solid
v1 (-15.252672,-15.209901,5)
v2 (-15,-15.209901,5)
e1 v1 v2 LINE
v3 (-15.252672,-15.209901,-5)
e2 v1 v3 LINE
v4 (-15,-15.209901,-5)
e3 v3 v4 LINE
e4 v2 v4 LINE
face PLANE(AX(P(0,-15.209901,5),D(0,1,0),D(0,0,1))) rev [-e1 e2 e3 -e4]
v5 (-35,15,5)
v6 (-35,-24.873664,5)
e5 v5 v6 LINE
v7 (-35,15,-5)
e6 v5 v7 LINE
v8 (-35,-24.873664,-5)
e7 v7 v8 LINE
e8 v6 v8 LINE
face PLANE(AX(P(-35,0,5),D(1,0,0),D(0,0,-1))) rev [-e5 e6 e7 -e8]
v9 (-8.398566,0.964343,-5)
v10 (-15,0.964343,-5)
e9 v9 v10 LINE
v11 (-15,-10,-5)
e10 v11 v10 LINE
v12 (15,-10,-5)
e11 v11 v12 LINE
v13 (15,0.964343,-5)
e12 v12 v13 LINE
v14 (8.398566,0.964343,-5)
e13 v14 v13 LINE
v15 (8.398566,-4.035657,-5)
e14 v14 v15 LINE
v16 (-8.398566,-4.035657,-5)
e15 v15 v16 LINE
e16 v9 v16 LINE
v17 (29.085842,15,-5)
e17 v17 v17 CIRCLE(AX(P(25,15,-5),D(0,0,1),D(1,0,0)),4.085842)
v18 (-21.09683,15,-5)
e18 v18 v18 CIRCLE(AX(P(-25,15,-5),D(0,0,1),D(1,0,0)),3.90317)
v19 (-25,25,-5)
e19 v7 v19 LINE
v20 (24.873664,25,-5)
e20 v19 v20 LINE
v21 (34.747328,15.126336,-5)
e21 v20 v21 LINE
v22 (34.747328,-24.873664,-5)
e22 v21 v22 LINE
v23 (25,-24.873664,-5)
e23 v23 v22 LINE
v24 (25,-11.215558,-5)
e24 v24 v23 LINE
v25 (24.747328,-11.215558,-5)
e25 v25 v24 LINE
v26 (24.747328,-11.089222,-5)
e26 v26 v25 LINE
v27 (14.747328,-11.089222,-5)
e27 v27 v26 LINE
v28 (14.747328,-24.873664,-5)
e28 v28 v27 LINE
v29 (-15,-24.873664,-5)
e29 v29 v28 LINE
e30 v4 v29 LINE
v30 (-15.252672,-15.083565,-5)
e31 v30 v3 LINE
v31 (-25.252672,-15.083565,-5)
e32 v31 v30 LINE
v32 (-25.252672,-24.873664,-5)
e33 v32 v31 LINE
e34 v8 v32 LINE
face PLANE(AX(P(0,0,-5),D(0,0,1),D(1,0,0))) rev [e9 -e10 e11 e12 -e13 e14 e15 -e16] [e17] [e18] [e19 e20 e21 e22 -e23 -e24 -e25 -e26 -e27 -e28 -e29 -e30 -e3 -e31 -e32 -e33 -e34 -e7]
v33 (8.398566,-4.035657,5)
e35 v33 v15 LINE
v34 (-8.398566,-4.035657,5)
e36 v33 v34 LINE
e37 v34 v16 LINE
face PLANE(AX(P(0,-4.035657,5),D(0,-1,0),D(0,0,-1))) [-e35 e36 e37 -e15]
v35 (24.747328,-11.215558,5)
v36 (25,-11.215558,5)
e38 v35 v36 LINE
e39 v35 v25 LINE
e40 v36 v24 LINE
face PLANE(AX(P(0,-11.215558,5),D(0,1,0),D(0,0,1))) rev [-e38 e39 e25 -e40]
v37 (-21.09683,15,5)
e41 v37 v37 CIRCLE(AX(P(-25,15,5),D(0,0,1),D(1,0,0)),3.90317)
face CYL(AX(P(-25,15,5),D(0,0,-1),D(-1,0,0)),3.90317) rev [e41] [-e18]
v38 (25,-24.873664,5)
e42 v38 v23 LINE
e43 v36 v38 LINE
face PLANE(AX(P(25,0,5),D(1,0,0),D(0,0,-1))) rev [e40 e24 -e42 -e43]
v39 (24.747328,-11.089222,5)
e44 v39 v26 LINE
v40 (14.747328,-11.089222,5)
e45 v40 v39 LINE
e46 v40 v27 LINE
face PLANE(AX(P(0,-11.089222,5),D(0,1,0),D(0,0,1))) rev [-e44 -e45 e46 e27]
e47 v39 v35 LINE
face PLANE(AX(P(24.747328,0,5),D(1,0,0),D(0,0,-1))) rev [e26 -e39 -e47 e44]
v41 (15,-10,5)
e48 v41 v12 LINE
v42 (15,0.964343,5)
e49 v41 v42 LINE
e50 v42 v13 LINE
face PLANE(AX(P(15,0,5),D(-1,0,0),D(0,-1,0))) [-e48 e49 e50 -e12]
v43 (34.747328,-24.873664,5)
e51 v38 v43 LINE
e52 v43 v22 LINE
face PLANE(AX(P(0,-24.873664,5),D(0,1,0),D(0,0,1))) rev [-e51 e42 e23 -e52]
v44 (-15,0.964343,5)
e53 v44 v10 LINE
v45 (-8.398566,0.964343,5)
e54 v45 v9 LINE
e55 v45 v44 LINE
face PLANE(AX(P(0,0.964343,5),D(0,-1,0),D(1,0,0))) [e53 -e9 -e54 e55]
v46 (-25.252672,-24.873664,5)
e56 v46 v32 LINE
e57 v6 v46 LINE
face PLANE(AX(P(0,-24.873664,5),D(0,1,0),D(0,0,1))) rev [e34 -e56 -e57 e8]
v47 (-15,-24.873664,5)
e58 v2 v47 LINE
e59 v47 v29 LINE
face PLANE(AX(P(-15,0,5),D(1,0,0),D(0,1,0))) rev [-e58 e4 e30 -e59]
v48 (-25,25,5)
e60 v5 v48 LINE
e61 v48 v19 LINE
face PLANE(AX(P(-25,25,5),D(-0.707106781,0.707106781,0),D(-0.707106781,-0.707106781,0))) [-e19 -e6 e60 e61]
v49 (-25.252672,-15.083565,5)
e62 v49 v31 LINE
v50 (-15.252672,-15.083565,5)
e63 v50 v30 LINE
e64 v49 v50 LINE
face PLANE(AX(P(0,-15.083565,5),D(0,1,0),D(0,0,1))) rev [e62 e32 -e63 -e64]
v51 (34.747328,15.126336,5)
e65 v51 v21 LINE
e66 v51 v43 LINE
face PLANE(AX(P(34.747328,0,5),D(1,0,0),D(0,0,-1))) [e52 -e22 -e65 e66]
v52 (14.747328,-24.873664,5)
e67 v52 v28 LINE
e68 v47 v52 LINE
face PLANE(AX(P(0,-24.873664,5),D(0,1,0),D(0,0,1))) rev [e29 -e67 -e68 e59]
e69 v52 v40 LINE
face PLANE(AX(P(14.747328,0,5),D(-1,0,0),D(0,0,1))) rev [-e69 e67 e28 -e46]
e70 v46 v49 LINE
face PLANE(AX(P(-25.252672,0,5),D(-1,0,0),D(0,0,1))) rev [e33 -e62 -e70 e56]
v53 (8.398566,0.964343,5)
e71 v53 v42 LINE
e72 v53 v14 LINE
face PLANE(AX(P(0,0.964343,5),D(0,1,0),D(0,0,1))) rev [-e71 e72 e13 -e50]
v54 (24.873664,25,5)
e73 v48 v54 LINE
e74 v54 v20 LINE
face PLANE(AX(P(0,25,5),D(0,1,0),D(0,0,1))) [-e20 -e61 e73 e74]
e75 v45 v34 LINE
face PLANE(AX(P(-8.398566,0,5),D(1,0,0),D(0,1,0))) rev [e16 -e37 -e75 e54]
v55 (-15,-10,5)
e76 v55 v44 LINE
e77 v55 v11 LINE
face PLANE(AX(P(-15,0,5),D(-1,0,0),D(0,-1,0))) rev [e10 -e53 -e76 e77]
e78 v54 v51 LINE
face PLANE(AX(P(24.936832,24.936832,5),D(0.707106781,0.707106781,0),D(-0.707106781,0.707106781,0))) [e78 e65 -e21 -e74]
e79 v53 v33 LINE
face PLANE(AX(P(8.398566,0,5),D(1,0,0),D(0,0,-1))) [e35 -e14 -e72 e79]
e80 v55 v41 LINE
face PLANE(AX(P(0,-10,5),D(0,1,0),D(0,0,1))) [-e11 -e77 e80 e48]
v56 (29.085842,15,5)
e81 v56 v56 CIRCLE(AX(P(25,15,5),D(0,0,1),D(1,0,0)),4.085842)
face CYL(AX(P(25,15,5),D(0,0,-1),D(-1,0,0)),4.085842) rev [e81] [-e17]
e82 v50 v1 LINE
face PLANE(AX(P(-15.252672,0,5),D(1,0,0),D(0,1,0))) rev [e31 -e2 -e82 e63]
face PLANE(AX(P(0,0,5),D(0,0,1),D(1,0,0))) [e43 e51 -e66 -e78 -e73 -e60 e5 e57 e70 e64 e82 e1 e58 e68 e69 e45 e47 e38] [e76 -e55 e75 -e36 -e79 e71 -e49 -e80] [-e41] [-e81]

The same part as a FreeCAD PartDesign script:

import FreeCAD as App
import Part
import Sketcher
Q = App.Units.Quantity


def add_polygon(sketch, points):
    """Adds a closed chain of lines whose ends are joined by coincident constraints."""
    first, n = sketch.GeometryCount, len(points)
    for a, b in zip(points, points[1:] + points[:1]):
        sketch.addGeometry(Part.LineSegment(App.Vector(*a, 0), App.Vector(*b, 0)), False)
    for i in range(n):
        sketch.addConstraint(Sketcher.Constraint("Coincident", first + i, 2, first + (i + 1) % n, 1))

doc = App.newDocument("Part")
body = doc.addObject("PartDesign::Body", "Body")

# Sketch on XY plane
sketch1 = body.newObject("Sketcher::SketchObject", "Sketch")
sketch1.AttachmentSupport = (doc.getObject("XY_Plane"), [""])
sketch1.MapMode = "FlatFace"
add_polygon(sketch1, [(24.87, 25), (-25, 25), (-35, 15), (-35, -24.87), (-25.25, -24.87), (-25.25, -15.08), (-15.25, -15.08), (-15.25, -15.21), (-15, -15.21), (-15, -24.87), (14.75, -24.87), (14.75, -11.09), (24.75, -11.09), (24.75, -11.22), (25, -11.22), (25, -24.87), (34.75, -24.87), (34.75, 15.13)])  # lines 0-17
add_polygon(sketch1, [(15, 0.96), (15, -10), (-15, -10), (-15, 0.96), (-8.4, 0.96), (-8.4, -4.04), (8.4, -4.04), (8.4, 0.96)])  # lines 18-25
sketch1.addGeometry(Part.Circle(App.Vector(-25, 15, 0), App.Vector(0, 0, 1), 3.9), False)  # 26
sketch1.addGeometry(Part.Circle(App.Vector(25, 15, 0), App.Vector(0, 0, 1), 4.09), False)  # 27
sketch1.addConstraint(Sketcher.Constraint("Horizontal", 0))
sketch1.addConstraint(Sketcher.Constraint("Vertical", 2))
sketch1.addConstraint(Sketcher.Constraint("Horizontal", 3))
sketch1.addConstraint(Sketcher.Constraint("Vertical", 4))
sketch1.addConstraint(Sketcher.Constraint("Horizontal", 5))
sketch1.addConstraint(Sketcher.Constraint("Vertical", 6))
sketch1.addConstraint(Sketcher.Constraint("Horizontal", 7))
sketch1.addConstraint(Sketcher.Constraint("Vertical", 8))
sketch1.addConstraint(Sketcher.Constraint("Horizontal", 9))
sketch1.addConstraint(Sketcher.Constraint("Vertical", 10))
sketch1.addConstraint(Sketcher.Constraint("Horizontal", 11))
sketch1.addConstraint(Sketcher.Constraint("Vertical", 12))
sketch1.addConstraint(Sketcher.Constraint("Horizontal", 13))
sketch1.addConstraint(Sketcher.Constraint("Vertical", 14))
sketch1.addConstraint(Sketcher.Constraint("Horizontal", 15))
sketch1.addConstraint(Sketcher.Constraint("Vertical", 16))
sketch1.addConstraint(Sketcher.Constraint("Vertical", 18))
sketch1.addConstraint(Sketcher.Constraint("Horizontal", 19))
sketch1.addConstraint(Sketcher.Constraint("Vertical", 20))
sketch1.addConstraint(Sketcher.Constraint("Horizontal", 21))
sketch1.addConstraint(Sketcher.Constraint("Vertical", 22))
sketch1.addConstraint(Sketcher.Constraint("Horizontal", 23))
sketch1.addConstraint(Sketcher.Constraint("Vertical", 24))
sketch1.addConstraint(Sketcher.Constraint("Horizontal", 25))
sketch1.addConstraint(Sketcher.Constraint("Symmetric", 26, 3, 27, 3, -2))
sketch1.addConstraint(Sketcher.Constraint("Symmetric", 21, 2, 24, 2, -2))
sketch1.addConstraint(Sketcher.Constraint("Perpendicular", 1, 17))
sketch1.addConstraint(Sketcher.Constraint("Horizontal", 27, 3, 1, 2))
sketch1.addConstraint(Sketcher.Constraint("Horizontal", 3, 2, 8, 2))
sketch1.addConstraint(Sketcher.Constraint("Horizontal", 9, 2, 14, 2))
sketch1.addConstraint(Sketcher.Constraint("Vertical", 26, 3, 0, 2))
sketch1.addConstraint(Sketcher.Constraint("Vertical", 27, 3, 13, 2))
sketch1.addConstraint(Sketcher.Constraint("Vertical", 8, 2, 19, 2))
sketch1.addConstraint(Sketcher.Constraint("Equal", 5, 11))
sketch1.addConstraint(Sketcher.Constraint("Equal", 7, 13))
sketch1.addConstraint(Sketcher.Constraint("Equal", 3, 15))
sketch1.addConstraint(Sketcher.Constraint("Equal", 21, 25))
sketch1.addConstraint(Sketcher.Constraint("Equal", 6, 12))
sketch1.addConstraint(Sketcher.Constraint("DistanceX", 5, 1, 5, 2, Q("10 mm")))
sketch1.addConstraint(Sketcher.Constraint("DistanceX", 19, 2, 19, 1, Q("30 mm")))
sketch1.addConstraint(Sketcher.Constraint("DistanceY", 16, 1, 16, 2, Q("40 mm")))
sketch1.addConstraint(Sketcher.Constraint("DistanceY", 22, 2, 22, 1, Q("5 mm")))
sketch1.addConstraint(Sketcher.Constraint("Angle", 1, Q("-135 deg")))
sketch1.addConstraint(Sketcher.Constraint("DistanceX", 26, 3, -1, 1, Q("25 mm")))
sketch1.addConstraint(Sketcher.Constraint("DistanceY", -1, 1, 26, 3, Q("15 mm")))
sketch1.addConstraint(Sketcher.Constraint("DistanceY", -1, 1, 0, 2, Q("25 mm")))
sketch1.addConstraint(Sketcher.Constraint("DistanceY", 18, 2, -1, 1, Q("10 mm")))
sketch1.addConstraint(Sketcher.Constraint("Diameter", 26, Q("7.80634 mm")))
sketch1.addConstraint(Sketcher.Constraint("Diameter", 27, Q("8.171684 mm")))
sketch1.addConstraint(Sketcher.Constraint("DistanceY", 4, 1, 4, 2, Q("9.790099 mm")))
sketch1.addConstraint(Sketcher.Constraint("DistanceX", 3, 1, 3, 2, Q("9.747328 mm")))
sketch1.addConstraint(Sketcher.Constraint("DistanceX", 23, 1, 23, 2, Q("16.797131 mm")))
sketch1.addConstraint(Sketcher.Constraint("DistanceY", 10, 1, 10, 2, Q("13.784442 mm")))
sketch1.addConstraint(Sketcher.Constraint("DistanceY", 6, 2, -1, 1, Q("15.209901 mm")))
sketch1.addConstraint(Sketcher.Constraint("Distance", 17, Q("13.96347 mm")))
sketch1.addConstraint(Sketcher.Constraint("DistanceY", 18, 2, 18, 1, Q("10.964343 mm")))
pad1 = body.newObject("PartDesign::Pad", "Pad")
pad1.Profile = sketch1
pad1.Length = 10
pad1.Midplane = True

doc.recompute()
